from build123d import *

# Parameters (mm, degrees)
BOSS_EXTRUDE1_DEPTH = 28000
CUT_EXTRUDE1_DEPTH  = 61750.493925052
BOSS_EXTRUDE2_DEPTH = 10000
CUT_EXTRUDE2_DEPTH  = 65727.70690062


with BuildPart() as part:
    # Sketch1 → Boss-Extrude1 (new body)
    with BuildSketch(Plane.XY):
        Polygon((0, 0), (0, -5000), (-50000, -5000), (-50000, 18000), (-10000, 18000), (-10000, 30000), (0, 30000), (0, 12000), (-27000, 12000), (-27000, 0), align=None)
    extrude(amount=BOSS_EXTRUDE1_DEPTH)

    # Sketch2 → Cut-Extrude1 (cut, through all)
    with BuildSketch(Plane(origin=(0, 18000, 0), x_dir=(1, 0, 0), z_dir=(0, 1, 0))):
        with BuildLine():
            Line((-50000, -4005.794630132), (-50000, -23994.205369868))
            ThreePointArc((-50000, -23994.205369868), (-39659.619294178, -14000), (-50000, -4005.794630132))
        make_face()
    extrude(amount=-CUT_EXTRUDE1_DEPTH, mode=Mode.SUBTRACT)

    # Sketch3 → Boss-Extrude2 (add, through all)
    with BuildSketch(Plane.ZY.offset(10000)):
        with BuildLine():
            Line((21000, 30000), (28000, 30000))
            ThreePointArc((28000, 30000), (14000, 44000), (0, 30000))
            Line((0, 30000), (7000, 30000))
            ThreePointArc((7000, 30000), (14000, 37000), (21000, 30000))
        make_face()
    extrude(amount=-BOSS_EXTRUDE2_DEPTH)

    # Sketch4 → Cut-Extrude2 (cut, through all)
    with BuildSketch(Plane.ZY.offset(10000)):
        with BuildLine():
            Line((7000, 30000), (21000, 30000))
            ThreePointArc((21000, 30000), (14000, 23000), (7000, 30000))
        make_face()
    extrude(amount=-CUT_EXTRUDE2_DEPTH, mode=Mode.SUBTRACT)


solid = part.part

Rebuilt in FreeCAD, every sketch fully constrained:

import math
import FreeCAD as App
import Part
import Sketcher
from FreeCAD import Vector


def add_polygon(sketch, points):
    """Adds a closed chain of lines whose ends are joined by coincident constraints."""
    first, n = sketch.GeometryCount, len(points)
    for a, b in zip(points, points[1:] + points[:1]):
        sketch.addGeometry(Part.LineSegment(App.Vector(*a, 0), App.Vector(*b, 0)), False)
    for i in range(n):
        sketch.addConstraint(Sketcher.Constraint("Coincident", first + i, 2, first + (i + 1) % n, 1))

doc = App.newDocument("Part")
body = doc.addObject("PartDesign::Body", "Body")

# Sketch on XY plane
sketch1 = body.newObject("Sketcher::SketchObject", "Sketch")
sketch1.AttachmentSupport = (doc.getObject("XY_Plane"), [""])
sketch1.MapMode = "FlatFace"
add_polygon(sketch1, [(0, -5000), (0, 0), (-27000, 0), (-27000, 12000), (0, 12000), (0, 30000), (-10000, 30000), (-10000, 18000), (-50000, 18000), (-50000, -5000)])  # lines 0-9
sketch1.addConstraint(Sketcher.Constraint("Vertical", 0))
sketch1.addConstraint(Sketcher.Constraint("Horizontal", 1))
sketch1.addConstraint(Sketcher.Constraint("Vertical", 2))
sketch1.addConstraint(Sketcher.Constraint("Horizontal", 3))
sketch1.addConstraint(Sketcher.Constraint("Vertical", 4))
sketch1.addConstraint(Sketcher.Constraint("Horizontal", 5))
sketch1.addConstraint(Sketcher.Constraint("Vertical", 6))
sketch1.addConstraint(Sketcher.Constraint("Horizontal", 7))
sketch1.addConstraint(Sketcher.Constraint("Vertical", 8))
sketch1.addConstraint(Sketcher.Constraint("Horizontal", 9))
sketch1.addConstraint(Sketcher.Constraint("Coincident", 0, 2, -1, 1))
sketch1.addConstraint(Sketcher.Constraint("PointOnObject", 3, 2, -2))
sketch1.addConstraint(Sketcher.Constraint("Equal", 2, 6))
sketch1.addConstraint(Sketcher.Constraint("DistanceX", 1, 2, 1, 1, 27000.0))
sketch1.addConstraint(Sketcher.Constraint("DistanceX", 5, 2, 5, 1, 10000.0))
sketch1.addConstraint(Sketcher.Constraint("DistanceX", 7, 2, 7, 1, 40000.0))
sketch1.addConstraint(Sketcher.Constraint("DistanceY", 0, 1, 0, 2, 5000.0))
sketch1.addConstraint(Sketcher.Constraint("DistanceY", 2, 1, 2, 2, 12000.0))
sketch1.addConstraint(Sketcher.Constraint("DistanceY", 4, 1, 4, 2, 18000.0))
pad1 = body.newObject("PartDesign::Pad", "Pad")
pad1.Profile = sketch1
pad1.Length = 28000

# Sketch on XZ plane
sketch2 = body.newObject("Sketcher::SketchObject", "Sketch001")
sketch2.AttachmentSupport = (doc.getObject("XZ_Plane"), [""])
sketch2.MapMode = "FlatFace"
sketch2.AttachmentOffset = App.Placement(Vector(0, 0, -18000), App.Rotation())
sketch2.addGeometry(Part.LineSegment(Vector(-50000, 4006, 0), Vector(-50000, 23994, 0)), False)
sketch2.addGeometry(Part.ArcOfCircle(Part.Circle(Vector(-49660, 14000, 0), Vector(0, 0, 1), 10000), math.radians(-92), math.radians(92)), False)
sketch2.addConstraint(Sketcher.Constraint("Coincident", 0, 1, 1, 1))
sketch2.addConstraint(Sketcher.Constraint("Coincident", 1, 2, 0, 2))
sketch2.addConstraint(Sketcher.Constraint("Vertical", 0))
sketch2.addConstraint(Sketcher.Constraint("Radius", 1, 10000.0))
sketch2.addConstraint(Sketcher.Constraint("DistanceY", -1, 1, 1, 3, 14000.0))
sketch2.addConstraint(Sketcher.Constraint("DistanceX", 0, 1, -1, 1, 50000.0))
sketch2.addConstraint(Sketcher.Constraint("DistanceY", 0, 1, 0, 2, 19988.41074))
pocket1 = body.newObject("PartDesign::Pocket", "Pocket")
pocket1.Profile = sketch2
pocket1.Type = "ThroughAll"
pocket1.Reversed = True

# Sketch on YZ plane
sketch3 = body.newObject("Sketcher::SketchObject", "Sketch002")
sketch3.AttachmentSupport = (doc.getObject("YZ_Plane"), [""])
sketch3.MapMode = "FlatFace"
sketch3.AttachmentOffset = App.Placement(Vector(0, 0, -10000), App.Rotation())
sketch3.addGeometry(Part.LineSegment(Vector(30000, 21000, 0), Vector(30000, 28000, 0)), False)
sketch3.addGeometry(Part.ArcOfCircle(Part.Circle(Vector(30000, 14000, 0), Vector(0, 0, 1), 14000), math.radians(-90), math.radians(90)), False)
sketch3.addGeometry(Part.LineSegment(Vector(30000, 0, 0), Vector(30000, 7000, 0)), False)
sketch3.addGeometry(Part.ArcOfCircle(Part.Circle(Vector(30000, 14000, 0), Vector(0, 0, 1), 7000), math.radians(-90), math.radians(90)), False)
sketch3.addConstraint(Sketcher.Constraint("Coincident", 0, 2, 1, 2))
sketch3.addConstraint(Sketcher.Constraint("Coincident", 1, 1, 2, 1))
sketch3.addConstraint(Sketcher.Constraint("Coincident", 2, 2, 3, 1))
sketch3.addConstraint(Sketcher.Constraint("Coincident", 3, 2, 0, 1))
sketch3.addConstraint(Sketcher.Constraint("Vertical", 0))
sketch3.addConstraint(Sketcher.Constraint("Vertical", 2))
sketch3.addConstraint(Sketcher.Constraint("Coincident", 3, 3, 1, 3))
sketch3.addConstraint(Sketcher.Constraint("PointOnObject", 1, 1, -1))
sketch3.addConstraint(Sketcher.Constraint("Vertical", 3, 3, 0, 2))
sketch3.addConstraint(Sketcher.Constraint("Radius", 1, 14000.0))
sketch3.addConstraint(Sketcher.Constraint("Radius", 3, 7000.0))
sketch3.addConstraint(Sketcher.Constraint("DistanceX", -1, 1, 1, 3, 30000.0))
sketch3.addConstraint(Sketcher.Constraint("DistanceX", -1, 1, 2, 2, 30000.0))
pad2 = body.newObject("PartDesign::Pad", "Pad001")
pad2.Profile = sketch3
pad2.Length = 10000

# Sketch on YZ plane
sketch4 = body.newObject("Sketcher::SketchObject", "Sketch003")
sketch4.AttachmentSupport = (doc.getObject("YZ_Plane"), [""])
sketch4.MapMode = "FlatFace"
sketch4.AttachmentOffset = App.Placement(Vector(0, 0, -10000), App.Rotation())
sketch4.addGeometry(Part.LineSegment(Vector(30000, 21000, 0), Vector(30000, 7000, 0)), False)
sketch4.addGeometry(Part.ArcOfCircle(Part.Circle(Vector(30000, 14000, 0), Vector(0, 0, 1), 7000), math.radians(90), math.radians(270)), False)
sketch4.addConstraint(Sketcher.Constraint("Coincident", 0, 1, 1, 1))
sketch4.addConstraint(Sketcher.Constraint("Coincident", 1, 2, 0, 2))
sketch4.addConstraint(Sketcher.Constraint("Vertical", 0))
sketch4.addConstraint(Sketcher.Constraint("Vertical", 1, 3, 0, 1))
sketch4.addConstraint(Sketcher.Constraint("Radius", 1, 7000.0))
sketch4.addConstraint(Sketcher.Constraint("DistanceX", -1, 1, 1, 3, 30000.0))
sketch4.addConstraint(Sketcher.Constraint("DistanceY", -1, 1, 1, 3, 14000.0))
pocket2 = body.newObject("PartDesign::Pocket", "Pocket001")
pocket2.Profile = sketch4
pocket2.Type = "ThroughAll"
pocket2.Reversed = True

doc.recompute()
